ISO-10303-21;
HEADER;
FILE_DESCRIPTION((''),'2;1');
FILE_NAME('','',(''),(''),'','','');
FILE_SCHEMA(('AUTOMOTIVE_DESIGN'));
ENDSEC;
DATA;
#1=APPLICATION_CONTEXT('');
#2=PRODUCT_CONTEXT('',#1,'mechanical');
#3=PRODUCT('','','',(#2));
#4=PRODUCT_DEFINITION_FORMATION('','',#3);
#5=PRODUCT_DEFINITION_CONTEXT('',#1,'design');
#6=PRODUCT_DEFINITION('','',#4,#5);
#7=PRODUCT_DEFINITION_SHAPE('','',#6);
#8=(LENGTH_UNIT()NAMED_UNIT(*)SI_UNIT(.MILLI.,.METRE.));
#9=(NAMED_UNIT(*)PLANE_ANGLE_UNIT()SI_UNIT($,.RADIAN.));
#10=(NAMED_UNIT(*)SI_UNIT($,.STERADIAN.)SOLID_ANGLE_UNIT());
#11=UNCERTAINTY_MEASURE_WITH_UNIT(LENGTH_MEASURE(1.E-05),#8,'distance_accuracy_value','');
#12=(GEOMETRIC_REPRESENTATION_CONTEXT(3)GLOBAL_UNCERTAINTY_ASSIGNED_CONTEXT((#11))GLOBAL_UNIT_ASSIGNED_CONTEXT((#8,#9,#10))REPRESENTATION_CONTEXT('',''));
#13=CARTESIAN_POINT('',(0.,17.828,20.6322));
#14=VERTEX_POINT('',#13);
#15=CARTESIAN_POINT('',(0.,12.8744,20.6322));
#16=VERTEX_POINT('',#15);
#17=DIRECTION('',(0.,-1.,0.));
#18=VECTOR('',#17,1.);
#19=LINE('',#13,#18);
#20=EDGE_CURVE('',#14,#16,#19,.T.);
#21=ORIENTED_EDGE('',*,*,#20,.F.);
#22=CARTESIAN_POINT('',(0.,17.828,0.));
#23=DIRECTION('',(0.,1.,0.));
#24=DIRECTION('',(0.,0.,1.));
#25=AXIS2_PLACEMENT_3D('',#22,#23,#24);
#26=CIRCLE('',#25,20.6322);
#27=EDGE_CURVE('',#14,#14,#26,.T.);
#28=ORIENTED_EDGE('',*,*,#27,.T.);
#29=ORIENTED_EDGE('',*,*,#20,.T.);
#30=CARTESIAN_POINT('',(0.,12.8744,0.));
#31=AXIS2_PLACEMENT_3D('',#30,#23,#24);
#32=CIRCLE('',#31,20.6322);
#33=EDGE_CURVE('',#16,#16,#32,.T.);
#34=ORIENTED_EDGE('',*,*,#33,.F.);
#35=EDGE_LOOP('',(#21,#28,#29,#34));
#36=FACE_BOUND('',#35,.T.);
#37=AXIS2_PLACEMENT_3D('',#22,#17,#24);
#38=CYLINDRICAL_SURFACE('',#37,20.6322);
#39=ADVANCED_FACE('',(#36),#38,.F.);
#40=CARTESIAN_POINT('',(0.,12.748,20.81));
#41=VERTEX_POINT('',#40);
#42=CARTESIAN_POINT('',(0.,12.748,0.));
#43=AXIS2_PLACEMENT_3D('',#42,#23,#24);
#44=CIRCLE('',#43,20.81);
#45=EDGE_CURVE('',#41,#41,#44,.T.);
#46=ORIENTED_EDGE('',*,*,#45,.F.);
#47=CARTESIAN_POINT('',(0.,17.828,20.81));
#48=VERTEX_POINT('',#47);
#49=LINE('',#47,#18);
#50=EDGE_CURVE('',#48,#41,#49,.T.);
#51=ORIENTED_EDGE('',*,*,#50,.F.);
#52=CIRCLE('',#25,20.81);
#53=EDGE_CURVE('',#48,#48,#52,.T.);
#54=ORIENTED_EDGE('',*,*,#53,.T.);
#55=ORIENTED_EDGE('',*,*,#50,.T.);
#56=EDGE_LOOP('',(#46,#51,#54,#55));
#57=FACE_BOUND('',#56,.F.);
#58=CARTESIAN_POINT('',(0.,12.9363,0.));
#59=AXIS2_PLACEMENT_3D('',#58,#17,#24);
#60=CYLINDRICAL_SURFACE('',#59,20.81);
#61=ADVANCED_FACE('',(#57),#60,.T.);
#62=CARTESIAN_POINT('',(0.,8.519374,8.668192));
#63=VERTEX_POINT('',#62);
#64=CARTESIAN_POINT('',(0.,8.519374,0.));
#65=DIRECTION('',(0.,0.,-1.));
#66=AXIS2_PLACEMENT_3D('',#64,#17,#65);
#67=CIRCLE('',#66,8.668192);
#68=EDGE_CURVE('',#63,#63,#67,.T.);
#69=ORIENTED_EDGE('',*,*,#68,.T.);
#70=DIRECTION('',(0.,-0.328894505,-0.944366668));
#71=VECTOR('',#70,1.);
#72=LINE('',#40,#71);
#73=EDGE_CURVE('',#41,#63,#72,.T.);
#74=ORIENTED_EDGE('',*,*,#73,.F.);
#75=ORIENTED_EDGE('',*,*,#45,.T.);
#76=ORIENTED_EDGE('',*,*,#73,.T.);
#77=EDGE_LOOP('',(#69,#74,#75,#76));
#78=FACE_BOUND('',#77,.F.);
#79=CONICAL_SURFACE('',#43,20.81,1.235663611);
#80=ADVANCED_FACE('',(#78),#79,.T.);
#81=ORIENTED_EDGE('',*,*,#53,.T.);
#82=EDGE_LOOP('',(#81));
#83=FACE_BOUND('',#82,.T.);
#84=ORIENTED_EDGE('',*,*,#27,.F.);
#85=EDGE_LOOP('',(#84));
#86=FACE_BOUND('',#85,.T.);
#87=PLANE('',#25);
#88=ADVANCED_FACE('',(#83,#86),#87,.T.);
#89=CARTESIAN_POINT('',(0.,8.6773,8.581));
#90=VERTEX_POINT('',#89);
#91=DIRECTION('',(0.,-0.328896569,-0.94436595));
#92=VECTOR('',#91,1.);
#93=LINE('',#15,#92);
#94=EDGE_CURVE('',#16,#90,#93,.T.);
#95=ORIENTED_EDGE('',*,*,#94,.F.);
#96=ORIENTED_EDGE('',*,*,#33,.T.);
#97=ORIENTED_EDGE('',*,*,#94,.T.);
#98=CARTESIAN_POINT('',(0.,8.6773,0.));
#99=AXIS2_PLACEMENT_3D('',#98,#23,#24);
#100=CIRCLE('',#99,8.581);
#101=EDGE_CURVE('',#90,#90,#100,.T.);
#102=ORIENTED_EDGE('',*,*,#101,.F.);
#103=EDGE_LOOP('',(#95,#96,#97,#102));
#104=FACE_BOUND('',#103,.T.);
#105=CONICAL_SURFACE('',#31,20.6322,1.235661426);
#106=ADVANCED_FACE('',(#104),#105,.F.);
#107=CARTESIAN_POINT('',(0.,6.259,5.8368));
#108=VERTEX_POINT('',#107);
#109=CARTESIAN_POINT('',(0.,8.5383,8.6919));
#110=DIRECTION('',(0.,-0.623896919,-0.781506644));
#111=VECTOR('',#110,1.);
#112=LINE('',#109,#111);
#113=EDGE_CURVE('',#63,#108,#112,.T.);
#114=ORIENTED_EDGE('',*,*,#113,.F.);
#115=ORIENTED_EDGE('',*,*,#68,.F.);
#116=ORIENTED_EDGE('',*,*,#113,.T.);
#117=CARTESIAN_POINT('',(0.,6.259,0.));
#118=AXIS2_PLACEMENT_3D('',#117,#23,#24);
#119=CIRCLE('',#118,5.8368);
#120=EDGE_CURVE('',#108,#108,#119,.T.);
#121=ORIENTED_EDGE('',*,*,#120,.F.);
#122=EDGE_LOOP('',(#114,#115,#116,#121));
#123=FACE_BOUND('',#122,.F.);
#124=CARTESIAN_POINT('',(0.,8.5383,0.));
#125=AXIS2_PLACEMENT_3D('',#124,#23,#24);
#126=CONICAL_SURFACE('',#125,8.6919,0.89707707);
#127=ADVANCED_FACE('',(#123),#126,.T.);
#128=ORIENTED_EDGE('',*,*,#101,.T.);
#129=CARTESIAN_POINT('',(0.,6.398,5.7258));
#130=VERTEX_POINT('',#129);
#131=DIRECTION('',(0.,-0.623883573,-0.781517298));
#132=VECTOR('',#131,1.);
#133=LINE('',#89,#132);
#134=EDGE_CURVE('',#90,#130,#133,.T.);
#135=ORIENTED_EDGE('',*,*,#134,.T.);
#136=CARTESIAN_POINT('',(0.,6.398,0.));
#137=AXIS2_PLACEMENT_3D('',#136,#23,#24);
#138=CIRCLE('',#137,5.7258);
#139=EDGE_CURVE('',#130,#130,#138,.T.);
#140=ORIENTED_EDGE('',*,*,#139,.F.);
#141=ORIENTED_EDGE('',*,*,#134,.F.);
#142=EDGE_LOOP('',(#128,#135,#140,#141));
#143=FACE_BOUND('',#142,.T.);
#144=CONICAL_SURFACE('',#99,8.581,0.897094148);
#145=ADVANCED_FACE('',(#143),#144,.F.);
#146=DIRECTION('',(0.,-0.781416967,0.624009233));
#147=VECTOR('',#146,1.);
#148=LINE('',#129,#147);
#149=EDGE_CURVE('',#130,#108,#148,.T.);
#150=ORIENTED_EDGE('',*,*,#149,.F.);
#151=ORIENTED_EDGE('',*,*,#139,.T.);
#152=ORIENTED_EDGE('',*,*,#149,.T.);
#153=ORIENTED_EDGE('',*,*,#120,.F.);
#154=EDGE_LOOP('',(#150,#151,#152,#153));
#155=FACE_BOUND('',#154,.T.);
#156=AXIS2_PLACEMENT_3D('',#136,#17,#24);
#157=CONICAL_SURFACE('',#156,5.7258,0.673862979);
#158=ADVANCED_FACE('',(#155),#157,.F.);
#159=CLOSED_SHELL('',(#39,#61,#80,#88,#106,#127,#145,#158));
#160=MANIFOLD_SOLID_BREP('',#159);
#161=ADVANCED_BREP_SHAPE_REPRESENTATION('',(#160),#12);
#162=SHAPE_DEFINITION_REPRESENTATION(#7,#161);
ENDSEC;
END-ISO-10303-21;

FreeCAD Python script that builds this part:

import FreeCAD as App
import Part
import Sketcher
Q = App.Units.Quantity


def add_polygon(sketch, points):
    """Adds a closed chain of lines whose ends are joined by coincident constraints."""
    first, n = sketch.GeometryCount, len(points)
    for a, b in zip(points, points[1:] + points[:1]):
        sketch.addGeometry(Part.LineSegment(App.Vector(*a, 0), App.Vector(*b, 0)), False)
    for i in range(n):
        sketch.addConstraint(Sketcher.Constraint("Coincident", first + i, 2, first + (i + 1) % n, 1))

doc = App.newDocument("Part")
body = doc.addObject("PartDesign::Body", "Body")

sketch1 = body.newObject("Sketcher::SketchObject", "Sketch")
sketch1.AttachmentSupport = (doc.getObject("YZ_Plane"), [""])
sketch1.MapMode = "FlatFace"
add_polygon(sketch1, [(17.83, 20.81), (12.75, 20.81), (8.42, 8.39), (8.68, 8.58), (12.87, 20.63), (17.83, 20.63)])
sketch1.addConstraint(Sketcher.Constraint("Horizontal", 0))
sketch1.addConstraint(Sketcher.Constraint("Horizontal", 4))
sketch1.addConstraint(Sketcher.Constraint("Vertical", 5))
sketch1.addConstraint(Sketcher.Constraint("Parallel", 1, 3))
sketch1.addConstraint(Sketcher.Constraint("DistanceX", 0, 2, 0, 1, Q("0.2 in")))
sketch1.addConstraint(Sketcher.Constraint("DistanceY", 5, 1, 5, 2, Q("0.007 in")))
sketch1.addConstraint(Sketcher.Constraint("DistanceY", -1, 1, 0, 2, Q("0.8193 in")))
sketch1.addConstraint(Sketcher.Constraint("DistanceY", -1, 1, 1, 2, 8.3886))
sketch1.addConstraint(Sketcher.Constraint("DistanceY", -1, 1, 2, 2, 8.581))
sketch1.addConstraint(Sketcher.Constraint("DistanceX", 1, 2, 0, 2, 4.326))
sketch1.addConstraint(Sketcher.Constraint("DistanceX", 4, 1, 4, 2, 4.9536))
sketch1.addConstraint(Sketcher.Constraint("DistanceX", -1, 1, 0, 2, Q("0.5019 in")))
revolution = body.newObject("PartDesign::Revolution", "Revolution")
revolution.Profile = sketch1
revolution.ReferenceAxis = (sketch1, ["H_Axis"])
revolution.Angle = 360

sketch2 = body.newObject("Sketcher::SketchObject", "Sketch001")
sketch2.AttachmentSupport = (doc.getObject("YZ_Plane"), [""])
sketch2.MapMode = "FlatFace"
add_polygon(sketch2, [(6.4, 5.73), (8.68, 8.58), (8.54, 8.69), (6.26, 5.84)])
sketch2.addConstraint(Sketcher.Constraint("Perpendicular", 0, 1))
sketch2.addConstraint(Sketcher.Constraint("Perpendicular", 1, 2))
sketch2.addConstraint(Sketcher.Constraint("Perpendicular", 2, 3))
sketch2.addConstraint(Sketcher.Constraint("Distance", 1, Q("0.007 in")))
sketch2.addConstraint(Sketcher.Constraint("Angle", 0, Q("51.3997 deg")))
sketch2.addConstraint(Sketcher.Constraint("DistanceY", -1, 1, 1, 2, Q("0.3422 in")))
sketch2.addConstraint(Sketcher.Constraint("DistanceY", -1, 1, 2, 2, Q("0.2298 in")))
sketch2.addConstraint(Sketcher.Constraint("DistanceX", -1, 1, 3, 2, Q("0.2519 in")))
revolution2 = body.newObject("PartDesign::Revolution", "Revolution001")
revolution2.Profile = sketch2
revolution2.ReferenceAxis = (sketch2, ["H_Axis"])
revolution2.Angle = 360

doc.recompute()
